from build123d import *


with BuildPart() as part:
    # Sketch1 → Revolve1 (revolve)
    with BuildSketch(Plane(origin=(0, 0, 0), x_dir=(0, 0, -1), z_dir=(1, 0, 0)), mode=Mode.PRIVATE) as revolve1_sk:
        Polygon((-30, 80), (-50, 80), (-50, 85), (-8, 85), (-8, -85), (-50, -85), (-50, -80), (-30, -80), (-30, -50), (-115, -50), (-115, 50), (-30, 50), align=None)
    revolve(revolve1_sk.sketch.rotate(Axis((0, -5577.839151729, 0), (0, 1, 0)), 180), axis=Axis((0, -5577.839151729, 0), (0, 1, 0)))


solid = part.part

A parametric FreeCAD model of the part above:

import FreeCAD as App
import Part
import Sketcher
Q = App.Units.Quantity


def add_polygon(sketch, points):
    """Adds a closed chain of lines whose ends are joined by coincident constraints."""
    first, n = sketch.GeometryCount, len(points)
    for a, b in zip(points, points[1:] + points[:1]):
        sketch.addGeometry(Part.LineSegment(App.Vector(*a, 0), App.Vector(*b, 0)), False)
    for i in range(n):
        sketch.addConstraint(Sketcher.Constraint("Coincident", first + i, 2, first + (i + 1) % n, 1))

doc = App.newDocument("Part")
body = doc.addObject("PartDesign::Body", "Body")

sketch1 = doc.addObject("Sketcher::SketchObject", "Sketch")
body.addObject(sketch1)
sketch1.AttachmentSupport = (doc.YZ_Plane, [""])
sketch1.MapMode = "FlatFace"
add_polygon(sketch1, [(80, 50), (80, 30), (50, 30), (50, 115), (-50, 115), (-50, 30), (-80, 30), (-80, 50), (-85, 50), (-85, 8), (85, 8), (85, 50)])
sketch1.addConstraint([
    Sketcher.Constraint("Vertical", 0),
    Sketcher.Constraint("Horizontal", 1),
    Sketcher.Constraint("Vertical", 2),
    Sketcher.Constraint("Horizontal", 3),
    Sketcher.Constraint("Vertical", 4),
    Sketcher.Constraint("Horizontal", 5),
    Sketcher.Constraint("Vertical", 6),
    Sketcher.Constraint("Horizontal", 7),
    Sketcher.Constraint("Vertical", 8),
    Sketcher.Constraint("Horizontal", 9),
    Sketcher.Constraint("Vertical", 10),
    Sketcher.Constraint("Horizontal", 11),
    Sketcher.Constraint("Symmetric", 1, 2, 4, 2, -2),
    Sketcher.Constraint("Symmetric", 7, 2, 10, 2, -2),
    Sketcher.Constraint("Equal", 1, 5),
    Sketcher.Constraint("DistanceX", 1, 2, 1, 1, Q("30 mm")),
    Sketcher.Constraint("DistanceX", 3, 2, 3, 1, Q("100 mm")),
    Sketcher.Constraint("DistanceX", 7, 2, 7, 1, Q("5 mm")),
    Sketcher.Constraint("DistanceY", 0, 2, 0, 1, Q("20 mm")),
    Sketcher.Constraint("DistanceY", 2, 1, 2, 2, Q("85 mm")),
    Sketcher.Constraint("DistanceY", 8, 2, 8, 1, Q("42 mm")),
    Sketcher.Constraint("DistanceY", -1, 1, 0, 2, Q("30 mm")),
])
revolution = doc.addObject("PartDesign::Revolution", "Revolution")
body.addObject(revolution)
revolution.Profile = sketch1
revolution.ReferenceAxis = (sketch1, ["H_Axis"])
revolution.Angle = 360

doc.recompute()
